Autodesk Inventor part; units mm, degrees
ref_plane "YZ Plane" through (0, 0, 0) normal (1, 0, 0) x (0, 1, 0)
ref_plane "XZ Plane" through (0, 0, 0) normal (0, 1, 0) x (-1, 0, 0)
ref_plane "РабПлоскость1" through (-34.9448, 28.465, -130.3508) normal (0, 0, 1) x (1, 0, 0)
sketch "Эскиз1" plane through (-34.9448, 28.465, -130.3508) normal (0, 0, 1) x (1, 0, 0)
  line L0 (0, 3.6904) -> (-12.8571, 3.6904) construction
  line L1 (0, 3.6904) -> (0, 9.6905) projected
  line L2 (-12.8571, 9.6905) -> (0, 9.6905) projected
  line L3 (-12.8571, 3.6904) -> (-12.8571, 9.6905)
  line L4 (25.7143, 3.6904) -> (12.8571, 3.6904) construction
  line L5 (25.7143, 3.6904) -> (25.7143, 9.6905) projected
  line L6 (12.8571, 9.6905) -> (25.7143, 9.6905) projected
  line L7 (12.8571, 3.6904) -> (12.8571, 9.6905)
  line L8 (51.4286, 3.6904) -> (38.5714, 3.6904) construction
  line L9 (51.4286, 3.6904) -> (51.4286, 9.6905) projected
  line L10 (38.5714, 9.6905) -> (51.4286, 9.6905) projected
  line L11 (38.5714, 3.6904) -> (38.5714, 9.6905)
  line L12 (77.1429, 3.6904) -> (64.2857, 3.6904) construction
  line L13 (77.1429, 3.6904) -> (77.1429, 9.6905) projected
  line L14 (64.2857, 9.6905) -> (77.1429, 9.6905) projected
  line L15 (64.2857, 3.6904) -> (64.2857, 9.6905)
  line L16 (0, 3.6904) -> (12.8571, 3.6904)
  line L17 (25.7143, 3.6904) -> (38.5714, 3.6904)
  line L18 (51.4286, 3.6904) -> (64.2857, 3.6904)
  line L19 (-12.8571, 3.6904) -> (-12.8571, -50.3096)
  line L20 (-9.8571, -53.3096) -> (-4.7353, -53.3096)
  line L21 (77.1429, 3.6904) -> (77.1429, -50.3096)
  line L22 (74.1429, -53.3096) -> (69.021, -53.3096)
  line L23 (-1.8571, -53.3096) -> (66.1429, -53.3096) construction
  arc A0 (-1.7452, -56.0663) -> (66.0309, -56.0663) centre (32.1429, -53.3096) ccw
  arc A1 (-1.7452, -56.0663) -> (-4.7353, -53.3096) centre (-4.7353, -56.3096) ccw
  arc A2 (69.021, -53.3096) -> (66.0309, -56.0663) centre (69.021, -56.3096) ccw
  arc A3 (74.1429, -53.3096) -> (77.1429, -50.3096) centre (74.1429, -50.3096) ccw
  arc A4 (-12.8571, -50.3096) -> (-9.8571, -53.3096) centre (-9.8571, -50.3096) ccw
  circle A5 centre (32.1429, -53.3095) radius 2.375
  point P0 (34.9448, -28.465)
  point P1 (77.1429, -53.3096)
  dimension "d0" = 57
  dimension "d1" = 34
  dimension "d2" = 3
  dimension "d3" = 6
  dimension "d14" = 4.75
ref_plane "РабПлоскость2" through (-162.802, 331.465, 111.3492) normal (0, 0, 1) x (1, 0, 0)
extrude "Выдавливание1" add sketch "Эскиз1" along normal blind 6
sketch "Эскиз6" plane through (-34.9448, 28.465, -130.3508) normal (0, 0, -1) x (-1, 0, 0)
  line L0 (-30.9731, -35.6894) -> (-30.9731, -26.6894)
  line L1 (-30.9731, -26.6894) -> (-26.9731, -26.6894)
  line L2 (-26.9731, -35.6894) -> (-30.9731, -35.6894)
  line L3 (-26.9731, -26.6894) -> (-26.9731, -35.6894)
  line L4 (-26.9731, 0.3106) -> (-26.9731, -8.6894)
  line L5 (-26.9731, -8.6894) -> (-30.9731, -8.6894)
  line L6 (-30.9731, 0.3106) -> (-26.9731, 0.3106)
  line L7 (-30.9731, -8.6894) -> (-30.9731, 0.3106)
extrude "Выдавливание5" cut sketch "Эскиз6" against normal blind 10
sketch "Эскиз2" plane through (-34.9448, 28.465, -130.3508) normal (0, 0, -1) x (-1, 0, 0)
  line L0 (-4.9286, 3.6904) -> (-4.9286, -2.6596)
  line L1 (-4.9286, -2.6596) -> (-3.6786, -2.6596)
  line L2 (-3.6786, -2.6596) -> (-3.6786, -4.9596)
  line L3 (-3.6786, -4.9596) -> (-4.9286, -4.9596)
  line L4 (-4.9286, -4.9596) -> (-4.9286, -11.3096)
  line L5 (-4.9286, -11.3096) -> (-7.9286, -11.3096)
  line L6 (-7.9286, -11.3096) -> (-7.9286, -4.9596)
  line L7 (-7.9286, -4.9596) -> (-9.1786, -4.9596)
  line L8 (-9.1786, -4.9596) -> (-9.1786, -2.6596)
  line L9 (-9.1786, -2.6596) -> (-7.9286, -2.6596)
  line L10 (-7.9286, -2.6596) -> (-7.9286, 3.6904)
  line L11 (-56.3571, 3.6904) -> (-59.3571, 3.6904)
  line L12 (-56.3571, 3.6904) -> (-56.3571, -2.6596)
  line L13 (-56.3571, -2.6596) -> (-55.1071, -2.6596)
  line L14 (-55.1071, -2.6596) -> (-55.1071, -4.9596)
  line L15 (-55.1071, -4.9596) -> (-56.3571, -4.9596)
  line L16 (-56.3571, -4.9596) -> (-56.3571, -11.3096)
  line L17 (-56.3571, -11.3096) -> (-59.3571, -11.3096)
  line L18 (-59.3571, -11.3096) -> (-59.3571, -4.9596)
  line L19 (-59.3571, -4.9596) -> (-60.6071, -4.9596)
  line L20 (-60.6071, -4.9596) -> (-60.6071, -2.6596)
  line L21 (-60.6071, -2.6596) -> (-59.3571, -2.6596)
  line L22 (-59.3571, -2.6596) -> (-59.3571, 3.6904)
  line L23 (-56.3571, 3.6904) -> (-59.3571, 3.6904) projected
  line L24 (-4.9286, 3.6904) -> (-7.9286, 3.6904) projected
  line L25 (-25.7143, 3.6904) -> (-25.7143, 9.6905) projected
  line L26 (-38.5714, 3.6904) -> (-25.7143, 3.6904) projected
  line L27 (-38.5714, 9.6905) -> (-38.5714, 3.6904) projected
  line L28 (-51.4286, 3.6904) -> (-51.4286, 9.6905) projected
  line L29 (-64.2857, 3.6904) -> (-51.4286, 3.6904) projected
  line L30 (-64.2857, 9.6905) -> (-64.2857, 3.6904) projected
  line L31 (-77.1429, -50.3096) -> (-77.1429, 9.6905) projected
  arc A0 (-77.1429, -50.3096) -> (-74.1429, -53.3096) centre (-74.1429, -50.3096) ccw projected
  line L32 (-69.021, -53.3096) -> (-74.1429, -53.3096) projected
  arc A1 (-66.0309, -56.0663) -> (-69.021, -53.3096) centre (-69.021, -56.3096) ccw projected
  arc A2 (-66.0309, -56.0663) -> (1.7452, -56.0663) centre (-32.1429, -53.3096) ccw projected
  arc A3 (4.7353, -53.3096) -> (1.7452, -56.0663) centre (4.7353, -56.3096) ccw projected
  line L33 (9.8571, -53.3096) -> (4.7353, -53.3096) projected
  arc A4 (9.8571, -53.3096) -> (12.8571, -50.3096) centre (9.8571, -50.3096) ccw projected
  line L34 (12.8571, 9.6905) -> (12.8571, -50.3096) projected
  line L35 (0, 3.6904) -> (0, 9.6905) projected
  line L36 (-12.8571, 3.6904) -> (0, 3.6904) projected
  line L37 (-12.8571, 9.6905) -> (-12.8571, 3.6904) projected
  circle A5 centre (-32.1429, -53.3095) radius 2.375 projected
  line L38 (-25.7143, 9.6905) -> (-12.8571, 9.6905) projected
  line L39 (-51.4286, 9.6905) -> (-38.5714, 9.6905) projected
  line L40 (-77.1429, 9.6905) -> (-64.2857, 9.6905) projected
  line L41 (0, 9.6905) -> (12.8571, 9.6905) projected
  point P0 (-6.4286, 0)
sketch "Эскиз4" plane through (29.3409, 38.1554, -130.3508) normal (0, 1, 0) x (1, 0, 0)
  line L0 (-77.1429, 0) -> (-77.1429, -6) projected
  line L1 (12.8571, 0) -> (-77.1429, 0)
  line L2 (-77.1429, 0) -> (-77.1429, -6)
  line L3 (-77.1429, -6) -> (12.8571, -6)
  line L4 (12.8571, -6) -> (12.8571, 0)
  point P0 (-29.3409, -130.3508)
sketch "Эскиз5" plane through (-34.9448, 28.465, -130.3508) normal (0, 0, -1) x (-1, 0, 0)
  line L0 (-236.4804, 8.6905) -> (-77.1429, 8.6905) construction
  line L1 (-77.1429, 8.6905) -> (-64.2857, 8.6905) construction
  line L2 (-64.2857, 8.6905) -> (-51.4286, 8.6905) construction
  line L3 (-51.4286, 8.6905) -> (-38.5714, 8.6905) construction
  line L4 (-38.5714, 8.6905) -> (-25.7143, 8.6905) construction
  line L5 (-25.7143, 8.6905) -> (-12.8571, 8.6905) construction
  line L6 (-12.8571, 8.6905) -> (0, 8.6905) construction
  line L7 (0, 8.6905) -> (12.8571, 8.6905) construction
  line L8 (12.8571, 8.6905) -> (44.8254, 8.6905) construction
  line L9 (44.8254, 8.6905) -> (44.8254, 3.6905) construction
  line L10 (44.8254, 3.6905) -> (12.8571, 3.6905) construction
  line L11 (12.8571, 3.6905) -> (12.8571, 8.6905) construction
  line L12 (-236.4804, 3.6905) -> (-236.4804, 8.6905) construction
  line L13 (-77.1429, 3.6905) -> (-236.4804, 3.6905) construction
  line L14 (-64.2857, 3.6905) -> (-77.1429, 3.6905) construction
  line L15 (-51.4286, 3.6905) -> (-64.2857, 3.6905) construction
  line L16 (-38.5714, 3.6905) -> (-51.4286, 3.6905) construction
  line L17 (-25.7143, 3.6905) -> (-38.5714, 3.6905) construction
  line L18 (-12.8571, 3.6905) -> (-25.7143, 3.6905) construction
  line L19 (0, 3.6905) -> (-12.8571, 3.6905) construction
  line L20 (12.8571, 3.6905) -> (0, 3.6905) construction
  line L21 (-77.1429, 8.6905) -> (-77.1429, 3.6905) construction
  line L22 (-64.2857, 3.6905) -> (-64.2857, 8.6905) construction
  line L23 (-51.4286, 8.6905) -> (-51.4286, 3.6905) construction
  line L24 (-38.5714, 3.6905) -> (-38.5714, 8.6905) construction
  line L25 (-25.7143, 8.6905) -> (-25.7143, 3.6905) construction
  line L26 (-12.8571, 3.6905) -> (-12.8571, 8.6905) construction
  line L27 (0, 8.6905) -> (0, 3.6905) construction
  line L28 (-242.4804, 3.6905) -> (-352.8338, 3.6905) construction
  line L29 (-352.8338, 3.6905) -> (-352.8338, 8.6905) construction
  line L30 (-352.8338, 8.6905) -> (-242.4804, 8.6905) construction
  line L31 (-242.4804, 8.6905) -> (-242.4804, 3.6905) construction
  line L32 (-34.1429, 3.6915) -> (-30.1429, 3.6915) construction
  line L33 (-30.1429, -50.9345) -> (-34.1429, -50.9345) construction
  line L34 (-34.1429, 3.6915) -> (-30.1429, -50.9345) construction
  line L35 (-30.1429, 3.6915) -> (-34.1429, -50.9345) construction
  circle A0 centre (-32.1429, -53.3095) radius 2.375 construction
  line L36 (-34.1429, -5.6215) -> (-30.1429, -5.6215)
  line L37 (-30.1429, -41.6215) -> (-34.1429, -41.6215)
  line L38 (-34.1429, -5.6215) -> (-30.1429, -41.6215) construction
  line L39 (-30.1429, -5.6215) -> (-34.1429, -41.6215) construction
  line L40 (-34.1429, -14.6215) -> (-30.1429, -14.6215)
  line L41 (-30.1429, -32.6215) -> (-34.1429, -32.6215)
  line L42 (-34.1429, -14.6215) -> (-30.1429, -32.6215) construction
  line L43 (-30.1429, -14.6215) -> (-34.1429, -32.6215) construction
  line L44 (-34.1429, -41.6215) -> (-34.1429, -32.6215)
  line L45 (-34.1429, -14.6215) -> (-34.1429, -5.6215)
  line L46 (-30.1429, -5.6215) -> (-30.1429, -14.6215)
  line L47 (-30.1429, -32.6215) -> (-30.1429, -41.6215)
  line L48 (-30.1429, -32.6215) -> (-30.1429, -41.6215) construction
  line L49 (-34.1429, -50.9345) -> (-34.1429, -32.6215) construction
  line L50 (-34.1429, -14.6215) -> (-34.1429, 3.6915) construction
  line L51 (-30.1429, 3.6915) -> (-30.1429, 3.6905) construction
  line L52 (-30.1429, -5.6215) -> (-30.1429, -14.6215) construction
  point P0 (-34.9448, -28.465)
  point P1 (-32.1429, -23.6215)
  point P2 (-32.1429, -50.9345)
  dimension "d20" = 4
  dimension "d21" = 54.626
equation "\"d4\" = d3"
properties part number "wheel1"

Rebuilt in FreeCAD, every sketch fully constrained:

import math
import FreeCAD as App
import Part
import Sketcher

V = App.Vector
Q = App.Units.Quantity

doc = App.newDocument("Part")
params = doc.addObject("Spreadsheet::Sheet", "Params")
for row, (alias, value) in enumerate([
    ("sketch1_radius", "3 mm"),
    ("sketch1_radius2", "34 mm"),
    ("sketch1_diameter", "4.75 mm"),
    ("sketch1_height", "6 mm"),
    ("pad1_length", "6 mm"),
    ("sketch2_width", "4 mm"),
    ("sketch2_height", "9 mm"),
    ("pocket1_length", "10 mm"),
], start=1):
    params.set(f"A{row}", alias)
    params.set(f"B{row}", "=" + value)
    params.setAlias(f"B{row}", alias)

body = doc.addObject("PartDesign::Body", "Body")

sketch1 = body.newObject("Sketcher::SketchObject", "Sketch")
sketch1.AttachmentSupport = (doc.getObject("XY_Plane"), [""])
sketch1.MapMode = "FlatFace"
sketch1.AttachmentOffset = App.Placement(V(0, 0, -130.3508), App.Rotation())
sketch1.addGeometry(Part.LineSegment(V(-22.1, 32.2, 0), V(-34.9, 32.2, 0)), False)
sketch1.addGeometry(Part.LineSegment(V(-34.9, 32.2, 0), V(-34.9, 38.2, 0)), False)
sketch1.addGeometry(Part.LineSegment(V(-34.9, 38.2, 0), V(-47.8, 38.2, 0)), False)
sketch1.addGeometry(Part.LineSegment(V(-47.8, 38.2, 0), V(-47.8, -21.8, 0)), False)
sketch1.addGeometry(Part.ArcOfCircle(Part.Circle(V(-44.8, -21.8, 0), V(0, 0, 1), 3), math.radians(180), math.radians(270)), False)
sketch1.addGeometry(Part.LineSegment(V(-44.8, -24.8, 0), V(-39.7, -24.8, 0)), False)
sketch1.addGeometry(Part.ArcOfCircle(Part.Circle(V(-39.7, -27.8, 0), V(0, 0, 1), 3), math.radians(5), math.radians(90)), False)
sketch1.addGeometry(Part.ArcOfCircle(Part.Circle(V(-2.8, -24.8, 0), V(0, 0, 1), 34), math.radians(-175), math.radians(-5)), False)
sketch1.addGeometry(Part.ArcOfCircle(Part.Circle(V(34.1, -27.8, 0), V(0, 0, 1), 3), math.radians(90), math.radians(175)), False)
sketch1.addGeometry(Part.LineSegment(V(34.1, -24.8, 0), V(39.2, -24.8, 0)), False)
sketch1.addGeometry(Part.ArcOfCircle(Part.Circle(V(39.2, -21.8, 0), V(0, 0, 1), 3), math.radians(-90), math.radians(0)), False)
sketch1.addGeometry(Part.LineSegment(V(42.2, -21.8, 0), V(42.2, 38.2, 0)), False)
sketch1.addGeometry(Part.LineSegment(V(42.2, 38.2, 0), V(29.3, 38.2, 0)), False)
sketch1.addGeometry(Part.LineSegment(V(29.3, 38.2, 0), V(29.3, 32.2, 0)), False)
sketch1.addGeometry(Part.LineSegment(V(29.3, 32.2, 0), V(16.5, 32.2, 0)), False)
sketch1.addGeometry(Part.LineSegment(V(16.5, 32.2, 0), V(16.5, 38.2, 0)), False)
sketch1.addGeometry(Part.LineSegment(V(16.5, 38.2, 0), V(3.6, 38.2, 0)), False)
sketch1.addGeometry(Part.LineSegment(V(3.6, 38.2, 0), V(3.6, 32.2, 0)), False)
sketch1.addGeometry(Part.LineSegment(V(3.6, 32.2, 0), V(-9.2, 32.2, 0)), False)
sketch1.addGeometry(Part.LineSegment(V(-9.2, 32.2, 0), V(-9.2, 38.2, 0)), False)
sketch1.addGeometry(Part.LineSegment(V(-9.2, 38.2, 0), V(-22.1, 38.2, 0)), False)
sketch1.addGeometry(Part.LineSegment(V(-22.1, 38.2, 0), V(-22.1, 32.2, 0)), False)
sketch1.addGeometry(Part.Circle(V(-2.8, -24.8, 0), V(0, 0, 1), 2.4), False)
sketch1.addConstraint(Sketcher.Constraint("Coincident", 0, 2, 1, 1))
sketch1.addConstraint(Sketcher.Constraint("Coincident", 1, 2, 2, 1))
sketch1.addConstraint(Sketcher.Constraint("Coincident", 2, 2, 3, 1))
sketch1.addConstraint(Sketcher.Constraint("Tangent", 3, 2, 4, 1))
sketch1.addConstraint(Sketcher.Constraint("Tangent", 4, 2, 5, 1))
sketch1.addConstraint(Sketcher.Constraint("Tangent", 5, 2, 6, 2))
sketch1.addConstraint(Sketcher.Constraint("Tangent", 6, 1, 7, 1))
sketch1.addConstraint(Sketcher.Constraint("Tangent", 7, 2, 8, 2))
sketch1.addConstraint(Sketcher.Constraint("Tangent", 8, 1, 9, 1))
sketch1.addConstraint(Sketcher.Constraint("Tangent", 9, 2, 10, 1))
sketch1.addConstraint(Sketcher.Constraint("Tangent", 10, 2, 11, 1))
sketch1.addConstraint(Sketcher.Constraint("Coincident", 11, 2, 12, 1))
sketch1.addConstraint(Sketcher.Constraint("Coincident", 12, 2, 13, 1))
sketch1.addConstraint(Sketcher.Constraint("Coincident", 13, 2, 14, 1))
sketch1.addConstraint(Sketcher.Constraint("Coincident", 14, 2, 15, 1))
sketch1.addConstraint(Sketcher.Constraint("Coincident", 15, 2, 16, 1))
sketch1.addConstraint(Sketcher.Constraint("Coincident", 16, 2, 17, 1))
sketch1.addConstraint(Sketcher.Constraint("Coincident", 17, 2, 18, 1))
sketch1.addConstraint(Sketcher.Constraint("Coincident", 18, 2, 19, 1))
sketch1.addConstraint(Sketcher.Constraint("Coincident", 19, 2, 20, 1))
sketch1.addConstraint(Sketcher.Constraint("Coincident", 20, 2, 21, 1))
sketch1.addConstraint(Sketcher.Constraint("Coincident", 21, 2, 0, 1))
sketch1.addConstraint(Sketcher.Constraint("Horizontal", 0))
sketch1.addConstraint(Sketcher.Constraint("Vertical", 1))
sketch1.addConstraint(Sketcher.Constraint("Horizontal", 2))
sketch1.addConstraint(Sketcher.Constraint("Vertical", 3))
sketch1.addConstraint(Sketcher.Constraint("Horizontal", 5))
sketch1.addConstraint(Sketcher.Constraint("Horizontal", 9))
sketch1.addConstraint(Sketcher.Constraint("Vertical", 11))
sketch1.addConstraint(Sketcher.Constraint("Horizontal", 12))
sketch1.addConstraint(Sketcher.Constraint("Vertical", 13))
sketch1.addConstraint(Sketcher.Constraint("Horizontal", 14))
sketch1.addConstraint(Sketcher.Constraint("Vertical", 15))
sketch1.addConstraint(Sketcher.Constraint("Horizontal", 16))
sketch1.addConstraint(Sketcher.Constraint("Vertical", 17))
sketch1.addConstraint(Sketcher.Constraint("Horizontal", 18))
sketch1.addConstraint(Sketcher.Constraint("Vertical", 19))
sketch1.addConstraint(Sketcher.Constraint("Horizontal", 20))
sketch1.addConstraint(Sketcher.Constraint("Vertical", 21))
sketch1.addConstraint(Sketcher.Constraint("Coincident", 22, 3, 7, 3))
sketch1.addConstraint(Sketcher.Constraint("Equal", 4, 6))
sketch1.addConstraint(Sketcher.Constraint("Equal", 6, 8))
sketch1.addConstraint(Sketcher.Constraint("Equal", 8, 10))
sketch1.addConstraint(Sketcher.Constraint("Horizontal", 6, 3, 8, 3))
sketch1.addConstraint(Sketcher.Constraint("Horizontal", 22, 3, 4, 2))
sketch1.addConstraint(Sketcher.Constraint("Horizontal", 2, 2, 11, 2))
sketch1.addConstraint(Sketcher.Constraint("Horizontal", 0, 2, 13, 2))
sketch1.addConstraint(Sketcher.Constraint("Horizontal", 12, 2, 15, 2))
sketch1.addConstraint(Sketcher.Constraint("Horizontal", 14, 2, 17, 2))
sketch1.addConstraint(Sketcher.Constraint("Horizontal", 16, 2, 19, 2))
sketch1.addConstraint(Sketcher.Constraint("Equal", 0, 2))
sketch1.addConstraint(Sketcher.Constraint("Equal", 5, 9))
sketch1.addConstraint(Sketcher.Constraint("Equal", 2, 12))
sketch1.addConstraint(Sketcher.Constraint("Equal", 12, 14))
sketch1.addConstraint(Sketcher.Constraint("Equal", 14, 16))
sketch1.addConstraint(Sketcher.Constraint("Equal", 16, 18))
sketch1.addConstraint(Sketcher.Constraint("Equal", 18, 20))
sketch1.addConstraint(Sketcher.Constraint("Radius", 4, Q("3 mm")))
sketch1.addConstraint(Sketcher.Constraint("Radius", 7, Q("34 mm")))
sketch1.addConstraint(Sketcher.Constraint("Diameter", 22, Q("4.75 mm")))
sketch1.addConstraint(Sketcher.Constraint("DistanceY", 1, 1, 1, 2, Q("6 mm")))
sketch1.addConstraint(Sketcher.Constraint("DistanceY", 22, 3, 0, 2, Q("57 mm")))
sketch1.addConstraint(Sketcher.Constraint("DistanceX", 4, 3, 7, 3, Q("42 mm")))
sketch1.addConstraint(Sketcher.Constraint("DistanceX", 6, 3, -1, 1, Q("39.68 mm")))
sketch1.addConstraint(Sketcher.Constraint("DistanceY", 4, 3, -1, 1, Q("21.8446 mm")))
sketch1.setExpression("Constraints[57]", "Params.sketch1_radius")
sketch1.setExpression("Constraints[58]", "Params.sketch1_radius2")
sketch1.setExpression("Constraints[59]", "Params.sketch1_diameter")
sketch1.setExpression("Constraints[60]", "Params.sketch1_height")
pad1 = body.newObject("PartDesign::Pad", "Pad")
pad1.Profile = sketch1
pad1.setExpression("Length", "Params.pad1_length")

sketch2 = body.newObject("Sketcher::SketchObject", "Sketch001")
sketch2.AttachmentSupport = (doc.getObject("XY_Plane"), [""])
sketch2.MapMode = "FlatFace"
sketch2.AttachmentOffset = App.Placement(V(0, 0, -130.3508), App.Rotation())
sketch2.addGeometry(Part.LineSegment(V(-4, 1.8, 0), V(-4, -7.2, 0)), False)
sketch2.addGeometry(Part.LineSegment(V(-4, -7.2, 0), V(-8, -7.2, 0)), False)
sketch2.addGeometry(Part.LineSegment(V(-8, -7.2, 0), V(-8, 1.8, 0)), False)
sketch2.addGeometry(Part.LineSegment(V(-8, 1.8, 0), V(-4, 1.8, 0)), False)
sketch2.addGeometry(Part.LineSegment(V(-8, 19.8, 0), V(-8, 28.8, 0)), False)
sketch2.addGeometry(Part.LineSegment(V(-8, 28.8, 0), V(-4, 28.8, 0)), False)
sketch2.addGeometry(Part.LineSegment(V(-4, 28.8, 0), V(-4, 19.8, 0)), False)
sketch2.addGeometry(Part.LineSegment(V(-4, 19.8, 0), V(-8, 19.8, 0)), False)
sketch2.addConstraint(Sketcher.Constraint("Coincident", 0, 2, 1, 1))
sketch2.addConstraint(Sketcher.Constraint("Coincident", 1, 2, 2, 1))
sketch2.addConstraint(Sketcher.Constraint("Coincident", 2, 2, 3, 1))
sketch2.addConstraint(Sketcher.Constraint("Coincident", 3, 2, 0, 1))
sketch2.addConstraint(Sketcher.Constraint("Coincident", 4, 2, 5, 1))
sketch2.addConstraint(Sketcher.Constraint("Coincident", 5, 2, 6, 1))
sketch2.addConstraint(Sketcher.Constraint("Coincident", 6, 2, 7, 1))
sketch2.addConstraint(Sketcher.Constraint("Coincident", 7, 2, 4, 1))
sketch2.addConstraint(Sketcher.Constraint("Vertical", 0))
sketch2.addConstraint(Sketcher.Constraint("Horizontal", 1))
sketch2.addConstraint(Sketcher.Constraint("Vertical", 2))
sketch2.addConstraint(Sketcher.Constraint("Horizontal", 3))
sketch2.addConstraint(Sketcher.Constraint("Vertical", 4))
sketch2.addConstraint(Sketcher.Constraint("Horizontal", 5))
sketch2.addConstraint(Sketcher.Constraint("Vertical", 6))
sketch2.addConstraint(Sketcher.Constraint("Horizontal", 7))
sketch2.addConstraint(Sketcher.Constraint("Vertical", 2, 2, 4, 2))
sketch2.addConstraint(Sketcher.Constraint("Vertical", 3, 2, 5, 2))
sketch2.addConstraint(Sketcher.Constraint("Equal", 2, 4))
sketch2.addConstraint(Sketcher.Constraint("DistanceX", 1, 2, 1, 1, Q("4 mm")))
sketch2.addConstraint(Sketcher.Constraint("DistanceY", 0, 2, 0, 1, Q("9 mm")))
sketch2.addConstraint(Sketcher.Constraint("DistanceY", 2, 2, 4, 2, Q("27 mm")))
sketch2.addConstraint(Sketcher.Constraint("DistanceX", 0, 2, -1, 1, Q("3.9717 mm")))
sketch2.addConstraint(Sketcher.Constraint("DistanceY", 0, 2, -1, 1, Q("7.2244 mm")))
sketch2.setExpression("Constraints[19]", "Params.sketch2_width")
sketch2.setExpression("Constraints[20]", "Params.sketch2_height")
pocket1 = body.newObject("PartDesign::Pocket", "Pocket")
pocket1.Profile = sketch2
pocket1.setExpression("Length", "Params.pocket1_length")
pocket1.Reversed = True

doc.recompute()
